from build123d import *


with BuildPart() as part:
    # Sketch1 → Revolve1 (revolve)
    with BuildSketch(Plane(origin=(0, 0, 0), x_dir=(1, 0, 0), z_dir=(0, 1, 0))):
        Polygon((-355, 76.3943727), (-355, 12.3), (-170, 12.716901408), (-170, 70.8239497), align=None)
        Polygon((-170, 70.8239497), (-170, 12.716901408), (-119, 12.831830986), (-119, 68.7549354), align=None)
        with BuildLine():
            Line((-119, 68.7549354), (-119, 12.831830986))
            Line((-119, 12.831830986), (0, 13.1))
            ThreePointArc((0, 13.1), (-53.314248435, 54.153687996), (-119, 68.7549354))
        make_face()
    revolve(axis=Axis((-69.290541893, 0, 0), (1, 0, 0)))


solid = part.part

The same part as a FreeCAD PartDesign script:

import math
import FreeCAD as App
import Part
import Sketcher
from FreeCAD import Vector

doc = App.newDocument("Part")
body = doc.addObject("PartDesign::Body", "Body")

sketch1 = body.newObject("Sketcher::SketchObject", "Sketch")
sketch1.AttachmentSupport = (doc.getObject("XZ_Plane"), [""])
sketch1.MapMode = "FlatFace"
sketch1.addGeometry(Part.LineSegment(Vector(-355, -76, 0), Vector(-355, -12, 0)), False)
sketch1.addGeometry(Part.LineSegment(Vector(-355, -12, 0), Vector(-170, -13, 0)), False)
sketch1.addGeometry(Part.LineSegment(Vector(-170, -13, 0), Vector(-119, -13, 0)), False)
sketch1.addGeometry(Part.LineSegment(Vector(-119, -13, 0), Vector(0, -13, 0)), False)
sketch1.addGeometry(Part.ArcOfCircle(Part.Circle(Vector(-119, 86, 0), Vector(0, 0, 1), 155), math.radians(-90), math.radians(-40)), False)
sketch1.addGeometry(Part.LineSegment(Vector(-119, -69, 0), Vector(-170, -71, 0)), False)
sketch1.addGeometry(Part.LineSegment(Vector(-170, -71, 0), Vector(-355, -76, 0)), False)
sketch1.addConstraint(Sketcher.Constraint("Coincident", 0, 2, 1, 1))
sketch1.addConstraint(Sketcher.Constraint("Coincident", 1, 2, 2, 1))
sketch1.addConstraint(Sketcher.Constraint("Coincident", 2, 2, 3, 1))
sketch1.addConstraint(Sketcher.Constraint("Coincident", 3, 2, 4, 2))
sketch1.addConstraint(Sketcher.Constraint("Coincident", 4, 1, 5, 1))
sketch1.addConstraint(Sketcher.Constraint("Coincident", 5, 2, 6, 1))
sketch1.addConstraint(Sketcher.Constraint("Coincident", 6, 2, 0, 1))
sketch1.addConstraint(Sketcher.Constraint("Vertical", 0))
sketch1.addConstraint(Sketcher.Constraint("PointOnObject", 3, 2, -2))
sketch1.addConstraint(Sketcher.Constraint("Parallel", 1, 2))
sketch1.addConstraint(Sketcher.Constraint("Parallel", 2, 3))
sketch1.addConstraint(Sketcher.Constraint("Vertical", 4, 3, 2, 2))
sketch1.addConstraint(Sketcher.Constraint("Vertical", 2, 2, 4, 1))
sketch1.addConstraint(Sketcher.Constraint("Vertical", 1, 2, 5, 2))
sketch1.addConstraint(Sketcher.Constraint("DistanceX", 4, 3, -1, 1, 119.0))
sketch1.addConstraint(Sketcher.Constraint("DistanceX", 0, 2, -1, 1, 355.0))
sketch1.addConstraint(Sketcher.Constraint("DistanceX", 1, 2, -1, 1, 170.0))
sketch1.addConstraint(Sketcher.Constraint("DistanceY", 0, 2, -1, 1, 12.3))
sketch1.addConstraint(Sketcher.Constraint("DistanceY", 3, 2, -1, 1, 13.1))
sketch1.addConstraint(Sketcher.Constraint("Radius", 4, 155.048889))
sketch1.addConstraint(Sketcher.Constraint("Distance", 5, 51.041952))
sketch1.addConstraint(Sketcher.Constraint("DistanceY", 0, 1, 0, 2, 64.094373))
revolution = body.newObject("PartDesign::Revolution", "Revolution")
revolution.Profile = sketch1
revolution.ReferenceAxis = (sketch1, ["H_Axis"])
revolution.Angle = 360

doc.recompute()
